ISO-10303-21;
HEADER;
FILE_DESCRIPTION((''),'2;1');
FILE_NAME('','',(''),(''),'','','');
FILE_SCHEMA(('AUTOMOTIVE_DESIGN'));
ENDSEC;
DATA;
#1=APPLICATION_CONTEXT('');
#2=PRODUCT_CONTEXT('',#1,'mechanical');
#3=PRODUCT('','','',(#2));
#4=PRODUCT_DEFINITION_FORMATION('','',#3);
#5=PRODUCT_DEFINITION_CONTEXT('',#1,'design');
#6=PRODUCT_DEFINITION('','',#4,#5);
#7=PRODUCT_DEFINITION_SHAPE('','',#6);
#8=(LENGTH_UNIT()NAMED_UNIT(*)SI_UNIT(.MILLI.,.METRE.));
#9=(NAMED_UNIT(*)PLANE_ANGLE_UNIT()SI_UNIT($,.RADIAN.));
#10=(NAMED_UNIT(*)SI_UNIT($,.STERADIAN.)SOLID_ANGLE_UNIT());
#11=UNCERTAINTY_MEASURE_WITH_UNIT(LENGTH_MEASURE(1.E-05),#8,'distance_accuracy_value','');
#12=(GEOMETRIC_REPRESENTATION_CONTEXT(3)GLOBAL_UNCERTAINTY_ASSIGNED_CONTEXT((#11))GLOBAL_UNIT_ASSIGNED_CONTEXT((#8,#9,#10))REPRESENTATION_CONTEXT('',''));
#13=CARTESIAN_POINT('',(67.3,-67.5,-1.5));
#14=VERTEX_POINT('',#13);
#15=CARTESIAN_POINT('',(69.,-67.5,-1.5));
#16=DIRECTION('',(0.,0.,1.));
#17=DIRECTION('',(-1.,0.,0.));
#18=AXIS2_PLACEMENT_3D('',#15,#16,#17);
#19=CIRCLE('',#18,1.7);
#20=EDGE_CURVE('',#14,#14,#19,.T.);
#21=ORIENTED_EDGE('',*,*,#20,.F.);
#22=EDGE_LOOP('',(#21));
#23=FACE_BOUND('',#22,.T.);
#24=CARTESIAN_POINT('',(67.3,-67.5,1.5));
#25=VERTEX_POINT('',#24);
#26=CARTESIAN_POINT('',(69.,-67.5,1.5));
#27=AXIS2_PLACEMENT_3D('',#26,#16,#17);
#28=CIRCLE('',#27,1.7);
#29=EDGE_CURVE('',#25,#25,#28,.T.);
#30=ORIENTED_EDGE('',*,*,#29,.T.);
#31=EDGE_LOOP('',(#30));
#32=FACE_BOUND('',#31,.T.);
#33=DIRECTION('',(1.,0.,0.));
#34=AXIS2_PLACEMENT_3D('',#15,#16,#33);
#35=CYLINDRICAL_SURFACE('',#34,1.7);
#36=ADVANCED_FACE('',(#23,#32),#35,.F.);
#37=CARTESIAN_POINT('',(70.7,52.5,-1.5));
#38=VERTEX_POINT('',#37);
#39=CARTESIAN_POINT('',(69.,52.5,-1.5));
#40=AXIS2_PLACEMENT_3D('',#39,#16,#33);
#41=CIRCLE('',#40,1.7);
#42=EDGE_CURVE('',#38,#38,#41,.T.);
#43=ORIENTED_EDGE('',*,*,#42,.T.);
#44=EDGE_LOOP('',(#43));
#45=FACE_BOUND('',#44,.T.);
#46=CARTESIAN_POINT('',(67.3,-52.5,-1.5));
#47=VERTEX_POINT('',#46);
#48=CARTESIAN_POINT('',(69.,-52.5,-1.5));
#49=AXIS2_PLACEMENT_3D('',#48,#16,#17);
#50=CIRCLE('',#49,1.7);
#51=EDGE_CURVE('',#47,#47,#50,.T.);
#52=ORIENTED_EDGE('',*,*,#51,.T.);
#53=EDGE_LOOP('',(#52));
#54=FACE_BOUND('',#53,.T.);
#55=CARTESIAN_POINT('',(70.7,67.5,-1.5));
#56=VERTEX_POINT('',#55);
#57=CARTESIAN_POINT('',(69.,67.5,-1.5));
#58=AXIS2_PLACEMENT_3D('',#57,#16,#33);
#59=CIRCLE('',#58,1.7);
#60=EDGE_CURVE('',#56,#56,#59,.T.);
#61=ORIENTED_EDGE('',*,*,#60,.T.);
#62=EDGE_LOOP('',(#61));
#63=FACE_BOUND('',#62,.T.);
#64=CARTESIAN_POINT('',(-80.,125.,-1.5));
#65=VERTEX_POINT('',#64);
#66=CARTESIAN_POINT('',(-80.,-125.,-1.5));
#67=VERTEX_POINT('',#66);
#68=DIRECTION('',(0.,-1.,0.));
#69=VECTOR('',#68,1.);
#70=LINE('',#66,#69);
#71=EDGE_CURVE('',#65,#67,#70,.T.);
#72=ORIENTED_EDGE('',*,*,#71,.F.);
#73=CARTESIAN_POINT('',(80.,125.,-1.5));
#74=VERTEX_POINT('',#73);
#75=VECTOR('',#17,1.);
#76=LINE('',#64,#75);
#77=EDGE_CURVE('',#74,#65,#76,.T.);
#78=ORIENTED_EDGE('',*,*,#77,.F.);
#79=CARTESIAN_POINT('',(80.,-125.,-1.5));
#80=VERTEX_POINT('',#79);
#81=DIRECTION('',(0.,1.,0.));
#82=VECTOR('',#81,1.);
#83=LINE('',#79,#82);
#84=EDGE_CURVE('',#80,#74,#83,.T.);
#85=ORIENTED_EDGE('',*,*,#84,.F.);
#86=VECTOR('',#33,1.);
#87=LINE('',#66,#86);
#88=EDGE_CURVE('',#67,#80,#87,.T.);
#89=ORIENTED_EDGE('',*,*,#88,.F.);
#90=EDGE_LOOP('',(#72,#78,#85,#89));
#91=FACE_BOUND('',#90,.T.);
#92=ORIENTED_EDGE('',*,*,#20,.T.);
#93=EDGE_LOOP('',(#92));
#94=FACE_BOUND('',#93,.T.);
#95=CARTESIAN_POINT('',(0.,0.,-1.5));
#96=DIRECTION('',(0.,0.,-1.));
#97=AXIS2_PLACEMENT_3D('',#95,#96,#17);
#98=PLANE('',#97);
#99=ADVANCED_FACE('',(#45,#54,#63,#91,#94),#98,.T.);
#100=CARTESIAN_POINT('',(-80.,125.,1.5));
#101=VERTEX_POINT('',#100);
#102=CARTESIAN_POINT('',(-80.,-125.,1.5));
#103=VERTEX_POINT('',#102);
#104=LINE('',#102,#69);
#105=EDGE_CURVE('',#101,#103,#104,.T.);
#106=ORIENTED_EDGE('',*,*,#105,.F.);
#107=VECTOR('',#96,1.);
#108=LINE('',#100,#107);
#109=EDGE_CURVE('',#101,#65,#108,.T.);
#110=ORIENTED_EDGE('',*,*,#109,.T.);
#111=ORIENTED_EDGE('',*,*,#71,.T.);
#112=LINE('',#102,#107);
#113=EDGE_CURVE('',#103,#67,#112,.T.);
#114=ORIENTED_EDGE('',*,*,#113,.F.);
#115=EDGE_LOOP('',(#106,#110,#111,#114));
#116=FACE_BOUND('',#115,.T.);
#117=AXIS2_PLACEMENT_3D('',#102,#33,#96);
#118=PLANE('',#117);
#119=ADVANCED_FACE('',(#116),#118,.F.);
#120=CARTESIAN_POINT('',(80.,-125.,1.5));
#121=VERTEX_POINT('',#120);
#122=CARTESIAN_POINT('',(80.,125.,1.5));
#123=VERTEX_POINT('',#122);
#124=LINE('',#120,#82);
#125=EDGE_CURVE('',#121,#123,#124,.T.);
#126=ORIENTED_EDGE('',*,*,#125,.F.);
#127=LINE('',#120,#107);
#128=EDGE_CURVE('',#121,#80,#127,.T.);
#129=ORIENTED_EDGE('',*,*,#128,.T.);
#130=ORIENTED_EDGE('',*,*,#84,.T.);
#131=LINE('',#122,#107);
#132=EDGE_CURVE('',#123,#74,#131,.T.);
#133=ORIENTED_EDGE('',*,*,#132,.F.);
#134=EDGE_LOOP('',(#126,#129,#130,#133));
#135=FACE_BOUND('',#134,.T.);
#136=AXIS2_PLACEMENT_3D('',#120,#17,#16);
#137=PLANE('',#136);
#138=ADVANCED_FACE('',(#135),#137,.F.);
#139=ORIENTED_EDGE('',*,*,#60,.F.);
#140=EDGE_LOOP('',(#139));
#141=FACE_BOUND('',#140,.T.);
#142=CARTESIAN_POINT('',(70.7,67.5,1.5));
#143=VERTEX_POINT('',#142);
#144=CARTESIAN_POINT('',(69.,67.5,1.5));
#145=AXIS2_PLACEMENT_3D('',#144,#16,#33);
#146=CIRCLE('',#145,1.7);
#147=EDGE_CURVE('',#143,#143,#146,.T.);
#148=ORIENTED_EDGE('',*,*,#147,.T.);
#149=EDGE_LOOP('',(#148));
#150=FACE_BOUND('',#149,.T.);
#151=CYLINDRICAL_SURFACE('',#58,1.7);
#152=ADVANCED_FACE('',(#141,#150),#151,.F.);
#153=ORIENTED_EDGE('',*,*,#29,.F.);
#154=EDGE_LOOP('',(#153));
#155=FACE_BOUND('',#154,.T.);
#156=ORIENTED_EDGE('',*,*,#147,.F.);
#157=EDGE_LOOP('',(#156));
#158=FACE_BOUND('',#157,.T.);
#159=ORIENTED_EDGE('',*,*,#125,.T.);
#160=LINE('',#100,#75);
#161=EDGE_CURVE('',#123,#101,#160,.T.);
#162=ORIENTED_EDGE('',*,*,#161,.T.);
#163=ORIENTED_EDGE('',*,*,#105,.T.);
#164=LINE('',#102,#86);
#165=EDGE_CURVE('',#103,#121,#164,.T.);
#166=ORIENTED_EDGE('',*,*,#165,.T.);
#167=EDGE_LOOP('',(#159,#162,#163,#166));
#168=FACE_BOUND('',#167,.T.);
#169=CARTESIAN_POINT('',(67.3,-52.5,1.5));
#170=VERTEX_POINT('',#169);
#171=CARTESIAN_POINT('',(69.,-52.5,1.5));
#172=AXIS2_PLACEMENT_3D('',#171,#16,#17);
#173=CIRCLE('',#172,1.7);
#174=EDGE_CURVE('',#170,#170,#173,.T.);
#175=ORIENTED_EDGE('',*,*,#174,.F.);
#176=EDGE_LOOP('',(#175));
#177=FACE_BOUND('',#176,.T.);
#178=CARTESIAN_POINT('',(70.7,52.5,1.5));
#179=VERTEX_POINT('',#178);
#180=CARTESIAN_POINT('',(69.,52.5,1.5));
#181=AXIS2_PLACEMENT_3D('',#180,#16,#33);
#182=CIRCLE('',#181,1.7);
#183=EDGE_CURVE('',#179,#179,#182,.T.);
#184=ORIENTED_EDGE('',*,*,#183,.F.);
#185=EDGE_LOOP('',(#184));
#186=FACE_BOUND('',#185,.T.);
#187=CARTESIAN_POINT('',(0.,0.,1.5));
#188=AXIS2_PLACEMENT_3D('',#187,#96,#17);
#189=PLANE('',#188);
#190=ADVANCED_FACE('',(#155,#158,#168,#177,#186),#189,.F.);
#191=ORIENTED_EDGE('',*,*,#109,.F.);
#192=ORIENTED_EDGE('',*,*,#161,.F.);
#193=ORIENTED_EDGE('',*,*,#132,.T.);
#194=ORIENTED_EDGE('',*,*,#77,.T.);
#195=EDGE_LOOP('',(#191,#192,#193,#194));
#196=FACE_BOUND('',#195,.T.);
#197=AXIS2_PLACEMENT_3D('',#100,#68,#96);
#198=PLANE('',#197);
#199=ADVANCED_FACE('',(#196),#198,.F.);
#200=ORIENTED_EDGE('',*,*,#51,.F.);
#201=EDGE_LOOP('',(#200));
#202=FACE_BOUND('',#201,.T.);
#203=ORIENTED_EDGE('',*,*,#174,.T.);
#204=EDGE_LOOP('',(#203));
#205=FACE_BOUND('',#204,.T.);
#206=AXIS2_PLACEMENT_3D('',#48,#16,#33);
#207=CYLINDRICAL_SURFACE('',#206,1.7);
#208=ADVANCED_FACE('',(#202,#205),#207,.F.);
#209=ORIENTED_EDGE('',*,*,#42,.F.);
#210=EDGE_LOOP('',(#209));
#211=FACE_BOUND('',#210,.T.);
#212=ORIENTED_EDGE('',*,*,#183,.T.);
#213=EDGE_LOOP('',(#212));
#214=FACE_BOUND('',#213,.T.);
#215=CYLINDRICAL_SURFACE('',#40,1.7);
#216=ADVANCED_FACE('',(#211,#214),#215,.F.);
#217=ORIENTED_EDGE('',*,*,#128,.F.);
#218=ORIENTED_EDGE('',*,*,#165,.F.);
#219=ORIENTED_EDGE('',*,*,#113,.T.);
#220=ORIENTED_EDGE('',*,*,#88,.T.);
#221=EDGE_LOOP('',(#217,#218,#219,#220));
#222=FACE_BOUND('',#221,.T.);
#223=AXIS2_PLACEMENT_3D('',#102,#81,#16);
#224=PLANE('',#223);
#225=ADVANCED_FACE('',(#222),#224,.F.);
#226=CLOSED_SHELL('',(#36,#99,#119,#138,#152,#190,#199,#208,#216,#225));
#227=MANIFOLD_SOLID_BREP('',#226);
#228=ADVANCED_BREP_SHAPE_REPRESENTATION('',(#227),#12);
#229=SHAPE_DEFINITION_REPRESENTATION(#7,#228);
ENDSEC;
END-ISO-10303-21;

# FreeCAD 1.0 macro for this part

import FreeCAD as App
import Part
import Sketcher
from FreeCAD import Vector

doc = App.newDocument("Part")
body = doc.addObject("PartDesign::Body", "Body")

# Sketch on XY plane
sketch1 = doc.addObject("Sketcher::SketchObject", "Sketch")
body.addObject(sketch1)
sketch1.AttachmentSupport = (doc.XY_Plane, [""])
sketch1.MapMode = "FlatFace"
sketch1.addGeometry(Part.LineSegment(Vector(-80, 125, 0), Vector(-80, -125, 0)), False)
sketch1.addGeometry(Part.LineSegment(Vector(-80, -125, 0), Vector(80, -125, 0)), False)
sketch1.addGeometry(Part.LineSegment(Vector(80, -125, 0), Vector(80, 125, 0)), False)
sketch1.addGeometry(Part.LineSegment(Vector(80, 125, 0), Vector(-80, 125, 0)), False)
sketch1.addConstraint(Sketcher.Constraint("Coincident", 0, 2, 1, 1))
sketch1.addConstraint(Sketcher.Constraint("Coincident", 1, 2, 2, 1))
sketch1.addConstraint(Sketcher.Constraint("Coincident", 2, 2, 3, 1))
sketch1.addConstraint(Sketcher.Constraint("Coincident", 3, 2, 0, 1))
sketch1.addConstraint(Sketcher.Constraint("Vertical", 0))
sketch1.addConstraint(Sketcher.Constraint("Horizontal", 1))
sketch1.addConstraint(Sketcher.Constraint("Vertical", 2))
sketch1.addConstraint(Sketcher.Constraint("Horizontal", 3))
sketch1.addConstraint(Sketcher.Constraint("Symmetric", 0, 2, 2, 2, -1, 1))
sketch1.addConstraint(Sketcher.Constraint("DistanceX", 1, 1, 1, 2, 160.0))
sketch1.addConstraint(Sketcher.Constraint("DistanceY", 0, 2, 0, 1, 250.0))
pad1 = doc.addObject("PartDesign::Pad", "Pad")
body.addObject(pad1)
pad1.Profile = sketch1
pad1.Length = 3
pad1.Midplane = True

# Sketch on XY plane
sketch2 = doc.addObject("Sketcher::SketchObject", "Sketch001")
body.addObject(sketch2)
sketch2.AttachmentSupport = (doc.XY_Plane, [""])
sketch2.MapMode = "FlatFace"
sketch2.AttachmentOffset = App.Placement(Vector(0, 0, 1.5), App.Rotation())
sketch2.addGeometry(Part.Circle(Vector(69, 67.5, 0), Vector(0, 0, 1), 1.7), False)
sketch2.addGeometry(Part.Circle(Vector(69, 52.5, 0), Vector(0, 0, 1), 1.7), False)
sketch2.addGeometry(Part.Circle(Vector(69, -52.5, 0), Vector(0, 0, 1), 1.7), False)
sketch2.addGeometry(Part.Circle(Vector(69, -67.5, 0), Vector(0, 0, 1), 1.7), False)
sketch2.addConstraint(Sketcher.Constraint("Equal", 0, 1))
sketch2.addConstraint(Sketcher.Constraint("Equal", 1, 2))
sketch2.addConstraint(Sketcher.Constraint("Equal", 2, 3))
sketch2.addConstraint(Sketcher.Constraint("Symmetric", 1, 3, 2, 3, -1))
sketch2.addConstraint(Sketcher.Constraint("Symmetric", 0, 3, 3, 3, -1))
sketch2.addConstraint(Sketcher.Constraint("Vertical", 0, 3, 1, 3))
sketch2.addConstraint(Sketcher.Constraint("Diameter", 0, 3.4))
sketch2.addConstraint(Sketcher.Constraint("DistanceX", -1, 1, 0, 3, 69.0))
sketch2.addConstraint(Sketcher.Constraint("DistanceY", 1, 3, 0, 3, 15.0))
sketch2.addConstraint(Sketcher.Constraint("DistanceY", 2, 3, 1, 3, 105.0))
pocket1 = doc.addObject("PartDesign::Pocket", "Pocket")
body.addObject(pocket1)
pocket1.Profile = sketch2
pocket1.Type = "ThroughAll"

doc.recompute()
